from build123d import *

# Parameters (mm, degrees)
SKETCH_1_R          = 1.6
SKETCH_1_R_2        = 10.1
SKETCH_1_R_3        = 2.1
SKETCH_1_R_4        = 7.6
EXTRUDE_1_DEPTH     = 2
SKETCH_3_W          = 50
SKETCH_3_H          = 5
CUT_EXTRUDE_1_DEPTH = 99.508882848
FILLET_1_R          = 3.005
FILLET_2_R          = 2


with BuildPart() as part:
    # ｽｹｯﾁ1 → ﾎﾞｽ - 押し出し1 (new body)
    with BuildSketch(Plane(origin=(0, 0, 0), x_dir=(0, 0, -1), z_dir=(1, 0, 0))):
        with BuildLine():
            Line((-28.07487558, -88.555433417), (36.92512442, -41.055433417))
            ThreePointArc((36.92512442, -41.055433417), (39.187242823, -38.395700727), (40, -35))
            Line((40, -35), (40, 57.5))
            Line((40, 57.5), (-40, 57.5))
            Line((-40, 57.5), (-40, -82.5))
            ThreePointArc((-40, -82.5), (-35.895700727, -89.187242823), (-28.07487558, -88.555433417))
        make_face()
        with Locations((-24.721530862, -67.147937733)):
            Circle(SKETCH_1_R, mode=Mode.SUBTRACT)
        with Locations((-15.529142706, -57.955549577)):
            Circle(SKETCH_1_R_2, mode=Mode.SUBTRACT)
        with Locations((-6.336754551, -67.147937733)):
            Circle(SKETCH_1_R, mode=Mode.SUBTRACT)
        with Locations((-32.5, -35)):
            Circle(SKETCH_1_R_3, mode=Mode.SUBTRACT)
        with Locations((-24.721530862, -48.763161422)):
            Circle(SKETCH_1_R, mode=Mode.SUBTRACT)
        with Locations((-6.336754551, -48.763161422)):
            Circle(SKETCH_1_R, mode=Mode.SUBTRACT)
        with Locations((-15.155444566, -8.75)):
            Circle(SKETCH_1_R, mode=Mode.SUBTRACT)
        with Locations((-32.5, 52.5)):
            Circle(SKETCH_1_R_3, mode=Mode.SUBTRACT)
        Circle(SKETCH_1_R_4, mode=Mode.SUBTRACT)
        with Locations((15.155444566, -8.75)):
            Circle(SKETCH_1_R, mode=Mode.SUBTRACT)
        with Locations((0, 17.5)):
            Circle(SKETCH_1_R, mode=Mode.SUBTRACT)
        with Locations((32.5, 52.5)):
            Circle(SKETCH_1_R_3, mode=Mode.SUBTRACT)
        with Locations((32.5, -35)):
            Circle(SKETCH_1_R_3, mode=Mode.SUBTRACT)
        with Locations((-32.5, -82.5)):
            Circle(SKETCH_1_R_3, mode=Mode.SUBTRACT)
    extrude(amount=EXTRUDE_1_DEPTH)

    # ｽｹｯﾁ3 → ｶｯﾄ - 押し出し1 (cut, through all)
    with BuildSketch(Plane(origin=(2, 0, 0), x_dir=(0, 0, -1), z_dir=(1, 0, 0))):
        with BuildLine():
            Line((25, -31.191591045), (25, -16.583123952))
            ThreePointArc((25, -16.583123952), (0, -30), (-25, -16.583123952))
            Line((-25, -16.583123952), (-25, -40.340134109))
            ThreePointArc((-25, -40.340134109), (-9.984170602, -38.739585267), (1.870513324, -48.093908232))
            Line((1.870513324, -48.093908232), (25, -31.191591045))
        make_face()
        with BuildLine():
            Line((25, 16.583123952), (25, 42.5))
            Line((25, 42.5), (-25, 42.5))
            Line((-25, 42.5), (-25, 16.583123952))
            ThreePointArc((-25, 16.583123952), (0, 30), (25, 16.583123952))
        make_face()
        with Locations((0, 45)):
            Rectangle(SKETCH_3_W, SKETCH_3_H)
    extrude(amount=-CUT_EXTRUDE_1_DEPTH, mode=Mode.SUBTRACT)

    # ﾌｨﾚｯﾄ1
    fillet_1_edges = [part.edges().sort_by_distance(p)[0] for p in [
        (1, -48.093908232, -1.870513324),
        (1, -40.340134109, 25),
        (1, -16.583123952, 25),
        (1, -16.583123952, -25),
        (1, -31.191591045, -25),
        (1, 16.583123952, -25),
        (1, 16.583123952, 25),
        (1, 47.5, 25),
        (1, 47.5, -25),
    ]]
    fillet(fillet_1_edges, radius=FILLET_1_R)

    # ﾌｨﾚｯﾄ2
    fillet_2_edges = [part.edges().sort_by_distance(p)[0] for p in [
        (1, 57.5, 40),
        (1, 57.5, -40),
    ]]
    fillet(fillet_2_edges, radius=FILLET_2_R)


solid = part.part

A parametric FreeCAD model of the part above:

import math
import FreeCAD as App
import Part
import Sketcher
from FreeCAD import Vector
Q = App.Units.Quantity


def edges_at(feature, points):
    """Names of the edges that pass closest to the given points."""
    edges = feature.Shape.Edges
    near = lambda p: min(range(len(edges)), key=lambda i: edges[i].distToShape(Part.Vertex(*p))[0])
    return sorted({f"Edge{near(p) + 1}" for p in points})

doc = App.newDocument("Part")
body = doc.addObject("PartDesign::Body", "Body")

sketch1 = body.newObject("Sketcher::SketchObject", "Sketch")
sketch1.AttachmentSupport = (doc.getObject("YZ_Plane"), [""])
sketch1.MapMode = "FlatFace"
sketch1.addGeometry([
    Part.LineSegment(Vector(-88.6, 28.1, 0), Vector(-41.1, -36.9, 0)),
    Part.ArcOfCircle(Part.Circle(Vector(-35, -32.5, 0), Vector(0, 0, 1), 7.5), math.radians(-144), math.radians(-90)),
    Part.LineSegment(Vector(-35, -40, 0), Vector(57.5, -40, 0)),
    Part.LineSegment(Vector(57.5, -40, 0), Vector(57.5, 40, 0)),
    Part.LineSegment(Vector(57.5, 40, 0), Vector(-82.5, 40, 0)),
    Part.ArcOfCircle(Part.Circle(Vector(-82.5, 32.5, 0), Vector(0, 0, 1), 7.5), math.radians(90), math.radians(216)),
    Part.Circle(Vector(-82.5, 32.5, 0), Vector(0, 0, 1), 2.1),
    Part.Circle(Vector(-67.1, 24.7, 0), Vector(0, 0, 1), 1.6),
    Part.Circle(Vector(-58, 15.5, 0), Vector(0, 0, 1), 10.1),
    Part.Circle(Vector(-67.1, 6.3, 0), Vector(0, 0, 1), 1.6),
    Part.Circle(Vector(-35, 32.5, 0), Vector(0, 0, 1), 2.1),
    Part.Circle(Vector(-48.8, 24.7, 0), Vector(0, 0, 1), 1.6),
    Part.Circle(Vector(-48.8, 6.3, 0), Vector(0, 0, 1), 1.6),
    Part.Circle(Vector(-35, -32.5, 0), Vector(0, 0, 1), 2.1),
    Part.Circle(Vector(-8.8, 15.2, 0), Vector(0, 0, 1), 1.6),
    Part.Circle(Vector(52.5, 32.5, 0), Vector(0, 0, 1), 2.1),
    Part.Circle(Vector(0, 0, 0), Vector(0, 0, 1), 7.6),
    Part.Circle(Vector(-8.8, -15.2, 0), Vector(0, 0, 1), 1.6),
    Part.Circle(Vector(17.5, 0, 0), Vector(0, 0, 1), 1.6),
    Part.Circle(Vector(52.5, -32.5, 0), Vector(0, 0, 1), 2.1),
], False)
sketch1.addConstraint([
    Sketcher.Constraint("Tangent", 0, 2, 1, 1),
    Sketcher.Constraint("Tangent", 1, 2, 2, 1),
    Sketcher.Constraint("Coincident", 2, 2, 3, 1),
    Sketcher.Constraint("Coincident", 3, 2, 4, 1),
    Sketcher.Constraint("Tangent", 4, 2, 5, 1),
    Sketcher.Constraint("Tangent", 5, 2, 0, 1),
    Sketcher.Constraint("Horizontal", 2),
    Sketcher.Constraint("Vertical", 3),
    Sketcher.Constraint("Horizontal", 4),
    Sketcher.Constraint("Coincident", 16, 3, -1, 1),
    Sketcher.Constraint("Coincident", 6, 3, 5, 3),
    Sketcher.Constraint("Coincident", 13, 3, 1, 3),
    Sketcher.Constraint("Equal", 1, 5),
    Sketcher.Constraint("Equal", 7, 9),
    Sketcher.Constraint("Equal", 6, 10),
    Sketcher.Constraint("Equal", 9, 11),
    Sketcher.Constraint("Equal", 11, 12),
    Sketcher.Constraint("Equal", 10, 13),
    Sketcher.Constraint("Equal", 12, 14),
    Sketcher.Constraint("Equal", 13, 15),
    Sketcher.Constraint("Equal", 14, 17),
    Sketcher.Constraint("Equal", 17, 18),
    Sketcher.Constraint("Equal", 15, 19),
    Sketcher.Constraint("Symmetric", 1, 3, 10, 3, -1),
    Sketcher.Constraint("Symmetric", 14, 3, 17, 3, -1),
    Sketcher.Constraint("Symmetric", 15, 3, 19, 3, -1),
    Sketcher.Constraint("PointOnObject", 18, 3, -1),
    Sketcher.Constraint("Horizontal", 6, 3, 10, 3),
    Sketcher.Constraint("Horizontal", 7, 3, 11, 3),
    Sketcher.Constraint("Horizontal", 9, 3, 12, 3),
    Sketcher.Constraint("Horizontal", 10, 3, 15, 3),
    Sketcher.Constraint("Vertical", 7, 3, 9, 3),
    Sketcher.Constraint("Vertical", 11, 3, 12, 3),
    Sketcher.Constraint("Diameter", 6, Q("4.2 mm")),
    Sketcher.Constraint("Diameter", 7, Q("3.2 mm")),
    Sketcher.Constraint("Diameter", 8, Q("20.2 mm")),
    Sketcher.Constraint("Diameter", 16, Q("15.2 mm")),
    Sketcher.Constraint("Radius", 1, Q("7.5 mm")),
    Sketcher.Constraint("DistanceX", 4, 2, 4, 1, Q("140 mm")),
    Sketcher.Constraint("DistanceY", 3, 1, 3, 2, Q("80 mm")),
    Sketcher.Constraint("DistanceX", 2, 1, 2, 2, Q("92.5 mm")),
    Sketcher.Constraint("DistanceX", 1, 3, -1, 1, Q("35 mm")),
    Sketcher.Constraint("DistanceX", 18, 3, 15, 3, Q("35 mm")),
    Sketcher.Constraint("DistanceX", 19, 3, 2, 2, Q("5 mm")),
    Sketcher.Constraint("DistanceX", 14, 3, -1, 1, Q("8.75 mm")),
    Sketcher.Constraint("DistanceY", 14, 3, 8, 3, Q("0.373698 mm")),
    Sketcher.Constraint("DistanceY", 17, 3, 12, 3, Q("21.492199 mm")),
    Sketcher.Constraint("DistanceY", -1, 1, 7, 3, Q("24.721531 mm")),
    Sketcher.Constraint("DistanceX", 8, 3, -1, 1, Q("57.95555 mm")),
    Sketcher.Constraint("DistanceX", 11, 3, -1, 1, Q("48.763161 mm")),
    Sketcher.Constraint("DistanceX", 7, 3, 8, 3, Q("9.192388 mm")),
    Sketcher.Constraint("DistanceY", 8, 3, 7, 3, Q("9.192388 mm")),
])
pad1 = body.newObject("PartDesign::Pad", "Pad")
pad1.Profile = sketch1
pad1.Length = 2

sketch2 = body.newObject("Sketcher::SketchObject", "Sketch001")
sketch2.AttachmentSupport = (doc.getObject("YZ_Plane"), [""])
sketch2.MapMode = "FlatFace"
sketch2.AttachmentOffset = App.Placement(Vector(0, 0, 2), App.Rotation())
sketch2.addGeometry([
    Part.LineSegment(Vector(-31, -25, 0), Vector(-17, -25, 0)),
    Part.ArcOfCircle(Part.Circle(Vector(0, 0, 0), Vector(0, 0, 1), 30), math.radians(124), math.radians(236)),
    Part.LineSegment(Vector(-17, 25, 0), Vector(-40, 25, 0)),
    Part.ArcOfCircle(Part.Circle(Vector(-58, 16, 0), Vector(0, 0, 1), 20), math.radians(-60), math.radians(28)),
    Part.LineSegment(Vector(-48, -2, 0), Vector(-31, -25, 0)),
    Part.LineSegment(Vector(17, -25, 0), Vector(48, -25, 0)),
    Part.LineSegment(Vector(48, -25, 0), Vector(48, 25, 0)),
    Part.LineSegment(Vector(48, 25, 0), Vector(17, 25, 0)),
    Part.ArcOfCircle(Part.Circle(Vector(0, 0, 0), Vector(0, 0, 1), 30), math.radians(-56), math.radians(56)),
], False)
sketch2.addConstraint([
    Sketcher.Constraint("Coincident", 0, 2, 1, 2),
    Sketcher.Constraint("Coincident", 1, 1, 2, 1),
    Sketcher.Constraint("Coincident", 2, 2, 3, 2),
    Sketcher.Constraint("Coincident", 3, 1, 4, 1),
    Sketcher.Constraint("Coincident", 4, 2, 0, 1),
    Sketcher.Constraint("Coincident", 5, 2, 6, 1),
    Sketcher.Constraint("Coincident", 6, 2, 7, 1),
    Sketcher.Constraint("Coincident", 7, 2, 8, 2),
    Sketcher.Constraint("Coincident", 8, 1, 5, 1),
    Sketcher.Constraint("Horizontal", 0),
    Sketcher.Constraint("Horizontal", 2),
    Sketcher.Constraint("Horizontal", 5),
    Sketcher.Constraint("Vertical", 6),
    Sketcher.Constraint("Horizontal", 7),
    Sketcher.Constraint("Coincident", 1, 3, -1, 1),
    Sketcher.Constraint("Coincident", 8, 3, -1, 1),
    Sketcher.Constraint("Equal", 1, 8),
    Sketcher.Constraint("Horizontal", 4, 2, 5, 2),
    Sketcher.Constraint("Horizontal", 2, 2, 6, 2),
    Sketcher.Constraint("Vertical", 0, 2, 1, 1),
    Sketcher.Constraint("Radius", 1, Q("30 mm")),
    Sketcher.Constraint("Radius", 3, Q("20 mm")),
    Sketcher.Constraint("DistanceY", 6, 1, 6, 2, Q("50 mm")),
    Sketcher.Constraint("DistanceX", -1, 1, 5, 2, Q("47.5 mm")),
    Sketcher.Constraint("DistanceX", 2, 2, 2, 1, Q("23.75701 mm")),
    Sketcher.Constraint("Distance", 4, Q("28.64719 mm")),
    Sketcher.Constraint("DistanceX", 0, 1, 0, 2, Q("14.608467 mm")),
    Sketcher.Constraint("DistanceX", 3, 3, -1, 1, Q("57.95555 mm")),
])
pocket1 = body.newObject("PartDesign::Pocket", "Pocket")
pocket1.Profile = sketch2
pocket1.Type = "ThroughAll"
doc.recompute()

fillet = body.newObject("PartDesign::Fillet", "Fillet")
fillet.Base = (pocket1, edges_at(pocket1, [
    (1, -48.094, -1.871),
    (1, -40.34, 25),
    (1, -16.583, 25),
    (1, -16.583, -25),
    (1, -31.192, -25),
    (1, 16.583, -25),
    (1, 16.583, 25),
    (1, 47.5, 25),
    (1, 47.5, -25),
]))
fillet.Radius = 3.005
doc.recompute()

fillet2 = body.newObject("PartDesign::Fillet", "Fillet001")
fillet2.Base = (fillet, edges_at(fillet, [(1, 57.5, 40), (1, 57.5, -40)]))
fillet2.Radius = 2

doc.recompute()
